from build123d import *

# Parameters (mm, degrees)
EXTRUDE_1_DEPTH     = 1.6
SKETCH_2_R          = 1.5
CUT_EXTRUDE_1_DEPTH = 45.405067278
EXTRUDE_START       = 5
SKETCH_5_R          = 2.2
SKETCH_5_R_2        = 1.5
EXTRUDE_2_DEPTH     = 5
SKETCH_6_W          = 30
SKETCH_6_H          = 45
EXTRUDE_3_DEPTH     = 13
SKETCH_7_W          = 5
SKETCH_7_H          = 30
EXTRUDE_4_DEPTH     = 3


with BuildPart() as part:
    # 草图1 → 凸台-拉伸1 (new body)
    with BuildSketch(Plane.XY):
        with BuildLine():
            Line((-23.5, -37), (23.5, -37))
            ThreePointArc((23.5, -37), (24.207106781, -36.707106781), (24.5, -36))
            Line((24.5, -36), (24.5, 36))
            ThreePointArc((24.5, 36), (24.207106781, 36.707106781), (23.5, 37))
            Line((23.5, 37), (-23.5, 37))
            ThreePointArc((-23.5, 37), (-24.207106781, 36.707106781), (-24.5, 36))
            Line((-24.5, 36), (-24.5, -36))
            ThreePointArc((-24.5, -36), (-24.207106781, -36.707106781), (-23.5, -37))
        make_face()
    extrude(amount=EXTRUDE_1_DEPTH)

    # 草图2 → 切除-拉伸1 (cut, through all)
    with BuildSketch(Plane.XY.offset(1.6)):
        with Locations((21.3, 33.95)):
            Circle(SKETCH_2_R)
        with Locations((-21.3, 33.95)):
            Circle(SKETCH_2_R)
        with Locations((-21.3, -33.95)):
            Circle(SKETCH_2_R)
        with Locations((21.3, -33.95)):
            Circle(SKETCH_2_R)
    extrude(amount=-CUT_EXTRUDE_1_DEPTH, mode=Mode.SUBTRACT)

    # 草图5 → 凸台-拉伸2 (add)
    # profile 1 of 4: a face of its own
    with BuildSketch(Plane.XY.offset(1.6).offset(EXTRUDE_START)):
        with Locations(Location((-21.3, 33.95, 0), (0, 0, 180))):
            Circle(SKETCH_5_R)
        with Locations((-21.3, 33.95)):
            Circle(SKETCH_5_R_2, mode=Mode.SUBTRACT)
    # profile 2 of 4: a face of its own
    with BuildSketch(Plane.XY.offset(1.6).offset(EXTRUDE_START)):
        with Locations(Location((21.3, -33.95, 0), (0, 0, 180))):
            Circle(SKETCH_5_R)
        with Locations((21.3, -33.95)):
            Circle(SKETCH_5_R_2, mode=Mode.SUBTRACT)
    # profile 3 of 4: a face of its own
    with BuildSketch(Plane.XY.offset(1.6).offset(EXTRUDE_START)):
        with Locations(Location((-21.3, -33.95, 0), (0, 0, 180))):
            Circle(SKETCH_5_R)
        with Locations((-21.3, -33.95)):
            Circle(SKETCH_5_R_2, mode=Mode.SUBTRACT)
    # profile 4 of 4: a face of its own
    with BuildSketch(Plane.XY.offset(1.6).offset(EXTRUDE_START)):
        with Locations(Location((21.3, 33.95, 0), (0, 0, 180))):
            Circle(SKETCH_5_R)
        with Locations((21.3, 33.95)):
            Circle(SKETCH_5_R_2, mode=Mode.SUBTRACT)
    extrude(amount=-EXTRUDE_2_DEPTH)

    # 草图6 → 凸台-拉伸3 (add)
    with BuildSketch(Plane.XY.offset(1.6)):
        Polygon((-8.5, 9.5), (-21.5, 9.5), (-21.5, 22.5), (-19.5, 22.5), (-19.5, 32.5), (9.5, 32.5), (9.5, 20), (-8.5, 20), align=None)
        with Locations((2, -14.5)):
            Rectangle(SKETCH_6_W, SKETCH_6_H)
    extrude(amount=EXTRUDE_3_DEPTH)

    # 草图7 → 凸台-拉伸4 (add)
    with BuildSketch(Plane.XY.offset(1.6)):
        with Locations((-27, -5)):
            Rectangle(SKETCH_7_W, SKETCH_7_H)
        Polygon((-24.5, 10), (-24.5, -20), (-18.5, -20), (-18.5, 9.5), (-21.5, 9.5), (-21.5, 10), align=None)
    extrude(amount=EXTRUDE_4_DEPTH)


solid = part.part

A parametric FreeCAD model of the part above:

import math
import FreeCAD as App
import Part
import Sketcher

V = App.Vector


def add_polygon(sketch, points):
    """Adds a closed chain of lines whose ends are joined by coincident constraints."""
    first, n = sketch.GeometryCount, len(points)
    for a, b in zip(points, points[1:] + points[:1]):
        sketch.addGeometry(Part.LineSegment(App.Vector(*a, 0), App.Vector(*b, 0)), False)
    for i in range(n):
        sketch.addConstraint(Sketcher.Constraint("Coincident", first + i, 2, first + (i + 1) % n, 1))

doc = App.newDocument("Part")
body = doc.addObject("PartDesign::Body", "Body")

# Sketch on XY plane
sketch1 = body.newObject("Sketcher::SketchObject", "Sketch")
sketch1.AttachmentSupport = (doc.getObject("XY_Plane"), [""])
sketch1.MapMode = "FlatFace"
sketch1.addGeometry([
    Part.LineSegment(V(-23.5, -37, 0), V(23.5, -37, 0)),  # 0
    Part.ArcOfCircle(Part.Circle(V(23.5, -36, 0), V(0, 0, 1), 1), math.radians(-90), math.radians(0)),  # 1
    Part.LineSegment(V(24.5, -36, 0), V(24.5, 36, 0)),  # 2
    Part.ArcOfCircle(Part.Circle(V(23.5, 36, 0), V(0, 0, 1), 1), math.radians(0), math.radians(90)),  # 3
    Part.LineSegment(V(23.5, 37, 0), V(-23.5, 37, 0)),  # 4
    Part.ArcOfCircle(Part.Circle(V(-23.5, 36, 0), V(0, 0, 1), 1), math.radians(90), math.radians(180)),  # 5
    Part.LineSegment(V(-24.5, 36, 0), V(-24.5, -36, 0)),  # 6
    Part.ArcOfCircle(Part.Circle(V(-23.5, -36, 0), V(0, 0, 1), 1), math.radians(-180), math.radians(-90)),  # 7
], False)
sketch1.addConstraint([
    Sketcher.Constraint("Tangent", 0, 2, 1, 1),
    Sketcher.Constraint("Tangent", 1, 2, 2, 1),
    Sketcher.Constraint("Tangent", 2, 2, 3, 1),
    Sketcher.Constraint("Tangent", 3, 2, 4, 1),
    Sketcher.Constraint("Tangent", 4, 2, 5, 1),
    Sketcher.Constraint("Tangent", 5, 2, 6, 1),
    Sketcher.Constraint("Tangent", 6, 2, 7, 1),
    Sketcher.Constraint("Tangent", 7, 2, 0, 1),
    Sketcher.Constraint("Horizontal", 0),
    Sketcher.Constraint("Vertical", 2),
    Sketcher.Constraint("Horizontal", 4),
    Sketcher.Constraint("Vertical", 6),
    Sketcher.Constraint("Equal", 1, 3),
    Sketcher.Constraint("Equal", 3, 5),
    Sketcher.Constraint("Equal", 5, 7),
    Sketcher.Constraint("Symmetric", 1, 3, 5, 3, -1, 1),
    Sketcher.Constraint("Radius", 1, 1.0),
    Sketcher.Constraint("DistanceX", 0, 1, 0, 2, 47.0),
    Sketcher.Constraint("DistanceY", 2, 1, 2, 2, 72.0),
])
pad1 = body.newObject("PartDesign::Pad", "Pad")
pad1.Profile = sketch1
pad1.Length = 1.6

# Sketch on XY plane
sketch2 = body.newObject("Sketcher::SketchObject", "Sketch001")
sketch2.AttachmentSupport = (doc.getObject("XY_Plane"), [""])
sketch2.MapMode = "FlatFace"
sketch2.AttachmentOffset = App.Placement(V(0, 0, 1.6), App.Rotation())
sketch2.addGeometry([
    Part.Circle(V(21.3, 34, 0), V(0, 0, 1), 1.5),
    Part.Circle(V(-21.3, 34, 0), V(0, 0, 1), 1.5),
    Part.Circle(V(-21.3, -34, 0), V(0, 0, 1), 1.5),
    Part.Circle(V(21.3, -34, 0), V(0, 0, 1), 1.5),
], False)
sketch2.addConstraint([
    Sketcher.Constraint("Equal", 0, 1),
    Sketcher.Constraint("Equal", 1, 2),
    Sketcher.Constraint("Equal", 2, 3),
    Sketcher.Constraint("Symmetric", 0, 3, 2, 3, -1, 1),
    Sketcher.Constraint("Symmetric", 1, 3, 3, 3, -1, 1),
    Sketcher.Constraint("Symmetric", 0, 3, 1, 3, -2),
    Sketcher.Constraint("Diameter", 0, 3.0),
    Sketcher.Constraint("DistanceX", -1, 1, 0, 3, 21.3),
    Sketcher.Constraint("DistanceY", 2, 3, 1, 3, 67.9),
])
pocket1 = body.newObject("PartDesign::Pocket", "Pocket")
pocket1.Profile = sketch2
pocket1.Type = "ThroughAll"

# Sketch on XY plane
sketch3 = body.newObject("Sketcher::SketchObject", "Sketch002")
sketch3.AttachmentSupport = (doc.getObject("XY_Plane"), [""])
sketch3.MapMode = "FlatFace"
sketch3.AttachmentOffset = App.Placement(V(0, 0, 6.6), App.Rotation())
sketch3.addGeometry([
    Part.Circle(V(-21.3, 34, 0), V(0, 0, 1), 2.2),  # 0
    Part.Circle(V(-21.3, 34, 0), V(0, 0, 1), 1.5),  # 1
    Part.Circle(V(21.3, -34, 0), V(0, 0, 1), 2.2),  # 2
    Part.Circle(V(21.3, -34, 0), V(0, 0, 1), 1.5),  # 3
    Part.Circle(V(-21.3, -34, 0), V(0, 0, 1), 2.2),  # 4
    Part.Circle(V(-21.3, -34, 0), V(0, 0, 1), 1.5),  # 5
    Part.Circle(V(21.3, 34, 0), V(0, 0, 1), 2.2),  # 6
    Part.Circle(V(21.3, 34, 0), V(0, 0, 1), 1.5),  # 7
], False)
sketch3.addConstraint([
    Sketcher.Constraint("Coincident", 1, 3, 0, 3),
    Sketcher.Constraint("Coincident", 3, 3, 2, 3),
    Sketcher.Constraint("Coincident", 5, 3, 4, 3),
    Sketcher.Constraint("Coincident", 7, 3, 6, 3),
    Sketcher.Constraint("Equal", 0, 2),
    Sketcher.Constraint("Equal", 1, 3),
    Sketcher.Constraint("Equal", 2, 4),
    Sketcher.Constraint("Equal", 3, 5),
    Sketcher.Constraint("Equal", 4, 6),
    Sketcher.Constraint("Equal", 5, 7),
    Sketcher.Constraint("Symmetric", 0, 3, 2, 3, -1, 1),
    Sketcher.Constraint("Symmetric", 4, 3, 6, 3, -1, 1),
    Sketcher.Constraint("Symmetric", 2, 3, 4, 3, -2),
    Sketcher.Constraint("Diameter", 1, 3.0),
    Sketcher.Constraint("Diameter", 0, 4.4),
    Sketcher.Constraint("DistanceX", 0, 3, -1, 1, 21.3),
    Sketcher.Constraint("DistanceY", 2, 3, 0, 3, 67.9),
])
pad2 = body.newObject("PartDesign::Pad", "Pad001")
pad2.Profile = sketch3
pad2.Length = 5
pad2.Reversed = True

# Sketch on XY plane
sketch4 = body.newObject("Sketcher::SketchObject", "Sketch003")
sketch4.AttachmentSupport = (doc.getObject("XY_Plane"), [""])
sketch4.MapMode = "FlatFace"
sketch4.AttachmentOffset = App.Placement(V(0, 0, 1.6), App.Rotation())
add_polygon(sketch4, [(-21.5, 9.5), (-8.5, 9.5), (-8.5, 20), (9.5, 20), (9.5, 32.5), (-19.5, 32.5), (-19.5, 22.5), (-21.5, 22.5)])  # lines 0-7
add_polygon(sketch4, [(-13, 8), (-13, -37), (17, -37), (17, 8)])  # lines 8-11
sketch4.addConstraint([
    Sketcher.Constraint("Horizontal", 0),
    Sketcher.Constraint("Vertical", 1),
    Sketcher.Constraint("Horizontal", 2),
    Sketcher.Constraint("Vertical", 3),
    Sketcher.Constraint("Horizontal", 4),
    Sketcher.Constraint("Vertical", 5),
    Sketcher.Constraint("Horizontal", 6),
    Sketcher.Constraint("Vertical", 7),
    Sketcher.Constraint("Vertical", 8),
    Sketcher.Constraint("Horizontal", 9),
    Sketcher.Constraint("Vertical", 10),
    Sketcher.Constraint("Horizontal", 11),
    Sketcher.Constraint("Equal", 0, 7),
    Sketcher.Constraint("DistanceX", 0, 1, 0, 2, 13.0),
    Sketcher.Constraint("DistanceX", 2, 1, 2, 2, 18.0),
    Sketcher.Constraint("DistanceX", 4, 2, 4, 1, 29.0),
    Sketcher.Constraint("DistanceX", 9, 1, 9, 2, 30.0),
    Sketcher.Constraint("DistanceY", 5, 2, 5, 1, 10.0),
    Sketcher.Constraint("DistanceY", 8, 2, 8, 1, 45.0),
    Sketcher.Constraint("DistanceY", 1, 1, 1, 2, 10.5),
    Sketcher.Constraint("DistanceY", -1, 1, 1, 2, 20.0),
    Sketcher.Constraint("DistanceX", 8, 2, -1, 1, 13.0),
    Sketcher.Constraint("DistanceY", 8, 2, -1, 1, 37.0),
    Sketcher.Constraint("DistanceX", 0, 2, -1, 1, 8.5),
])
pad3 = body.newObject("PartDesign::Pad", "Pad002")
pad3.Profile = sketch4
pad3.Length = 13

# Sketch on XY plane
sketch5 = body.newObject("Sketcher::SketchObject", "Sketch004")
sketch5.AttachmentSupport = (doc.getObject("XY_Plane"), [""])
sketch5.MapMode = "FlatFace"
sketch5.AttachmentOffset = App.Placement(V(0, 0, 1.6), App.Rotation())
add_polygon(sketch5, [(-29.5, 10), (-29.5, -20), (-18.5, -20), (-18.5, 9.5), (-21.5, 9.5), (-21.5, 10)])  # lines 0-5
sketch5.addConstraint([
    Sketcher.Constraint("Vertical", 0),
    Sketcher.Constraint("Horizontal", 1),
    Sketcher.Constraint("Vertical", 2),
    Sketcher.Constraint("Horizontal", 3),
    Sketcher.Constraint("Vertical", 4),
    Sketcher.Constraint("Horizontal", 5),
    Sketcher.Constraint("DistanceX", 1, 1, 1, 2, 11.0),
    Sketcher.Constraint("DistanceX", 3, 2, 3, 1, 3.0),
    Sketcher.Constraint("DistanceY", 0, 2, 0, 1, 30.0),
    Sketcher.Constraint("DistanceY", 2, 1, 2, 2, 29.5),
    Sketcher.Constraint("DistanceY", 0, 2, -1, 1, 20.0),
    Sketcher.Constraint("DistanceX", 0, 2, -1, 1, 29.5),
])
pad4 = body.newObject("PartDesign::Pad", "Pad003")
pad4.Profile = sketch5
pad4.Length = 3

doc.recompute()
